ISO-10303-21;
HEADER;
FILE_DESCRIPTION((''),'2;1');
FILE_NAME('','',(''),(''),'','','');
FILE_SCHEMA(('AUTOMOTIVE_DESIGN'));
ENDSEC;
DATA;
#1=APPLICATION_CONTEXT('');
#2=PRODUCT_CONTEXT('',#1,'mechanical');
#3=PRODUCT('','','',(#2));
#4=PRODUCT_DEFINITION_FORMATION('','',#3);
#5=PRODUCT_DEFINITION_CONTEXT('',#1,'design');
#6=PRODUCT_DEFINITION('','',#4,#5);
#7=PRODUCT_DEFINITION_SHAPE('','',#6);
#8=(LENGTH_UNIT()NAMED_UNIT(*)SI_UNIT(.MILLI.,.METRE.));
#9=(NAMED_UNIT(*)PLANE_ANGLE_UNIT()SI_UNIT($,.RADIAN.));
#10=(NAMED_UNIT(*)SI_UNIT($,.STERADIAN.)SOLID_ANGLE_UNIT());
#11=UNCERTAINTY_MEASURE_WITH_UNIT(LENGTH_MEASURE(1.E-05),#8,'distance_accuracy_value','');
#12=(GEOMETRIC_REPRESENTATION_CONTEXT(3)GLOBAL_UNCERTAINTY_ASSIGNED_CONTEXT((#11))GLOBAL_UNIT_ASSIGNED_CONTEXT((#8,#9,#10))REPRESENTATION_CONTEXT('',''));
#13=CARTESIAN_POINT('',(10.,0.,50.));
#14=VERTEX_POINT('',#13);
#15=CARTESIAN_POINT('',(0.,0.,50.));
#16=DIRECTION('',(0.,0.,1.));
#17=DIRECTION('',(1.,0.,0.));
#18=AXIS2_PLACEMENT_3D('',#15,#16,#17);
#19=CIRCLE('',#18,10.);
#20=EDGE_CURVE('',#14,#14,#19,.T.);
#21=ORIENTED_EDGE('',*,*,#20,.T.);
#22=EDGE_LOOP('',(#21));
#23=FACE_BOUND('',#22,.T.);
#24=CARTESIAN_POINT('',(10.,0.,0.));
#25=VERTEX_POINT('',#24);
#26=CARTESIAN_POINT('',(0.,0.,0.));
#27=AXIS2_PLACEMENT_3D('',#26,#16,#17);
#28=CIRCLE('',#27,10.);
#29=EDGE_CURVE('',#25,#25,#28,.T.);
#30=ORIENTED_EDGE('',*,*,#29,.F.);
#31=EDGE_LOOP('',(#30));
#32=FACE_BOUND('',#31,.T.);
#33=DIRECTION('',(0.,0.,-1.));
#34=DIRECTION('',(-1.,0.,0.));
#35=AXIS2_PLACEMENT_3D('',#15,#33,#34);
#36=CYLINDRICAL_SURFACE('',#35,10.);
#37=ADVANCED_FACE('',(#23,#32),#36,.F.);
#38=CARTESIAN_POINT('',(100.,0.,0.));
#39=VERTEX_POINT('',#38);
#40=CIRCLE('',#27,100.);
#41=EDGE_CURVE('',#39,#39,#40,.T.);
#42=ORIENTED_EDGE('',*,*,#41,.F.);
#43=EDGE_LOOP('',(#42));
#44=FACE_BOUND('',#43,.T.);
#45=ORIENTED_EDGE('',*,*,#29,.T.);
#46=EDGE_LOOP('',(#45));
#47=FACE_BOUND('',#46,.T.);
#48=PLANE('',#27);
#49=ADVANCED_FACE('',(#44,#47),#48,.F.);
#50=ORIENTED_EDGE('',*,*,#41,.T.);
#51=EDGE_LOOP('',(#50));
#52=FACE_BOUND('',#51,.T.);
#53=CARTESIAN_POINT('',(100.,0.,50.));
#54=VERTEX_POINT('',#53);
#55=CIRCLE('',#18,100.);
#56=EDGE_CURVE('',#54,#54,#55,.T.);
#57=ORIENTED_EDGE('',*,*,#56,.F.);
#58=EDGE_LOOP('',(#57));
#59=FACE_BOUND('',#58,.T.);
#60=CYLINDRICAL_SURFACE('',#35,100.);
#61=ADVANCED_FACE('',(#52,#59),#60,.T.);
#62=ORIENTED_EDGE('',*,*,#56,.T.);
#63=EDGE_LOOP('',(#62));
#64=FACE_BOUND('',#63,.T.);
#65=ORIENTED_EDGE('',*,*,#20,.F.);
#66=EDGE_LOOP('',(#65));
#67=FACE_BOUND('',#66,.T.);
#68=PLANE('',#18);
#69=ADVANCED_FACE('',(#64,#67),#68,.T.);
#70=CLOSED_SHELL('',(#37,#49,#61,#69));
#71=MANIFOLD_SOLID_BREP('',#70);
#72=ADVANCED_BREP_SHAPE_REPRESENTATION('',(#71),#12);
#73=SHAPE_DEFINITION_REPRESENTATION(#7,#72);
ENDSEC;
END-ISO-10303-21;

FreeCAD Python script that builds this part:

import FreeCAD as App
import Part
import Sketcher
Q = App.Units.Quantity

doc = App.newDocument("Part")
params = doc.addObject("Spreadsheet::Sheet", "Params")
for row, (alias, value) in enumerate([
    ("sketch1_diameter", "200 mm"),
    ("pad1_length", "50 mm"),
    ("sketch2_diameter", "20 mm"),
    ("pocket1_length", "50 mm"),
], start=1):
    params.set(f"A{row}", alias)
    params.set(f"B{row}", "=" + value)
    params.setAlias(f"B{row}", alias)

body = doc.addObject("PartDesign::Body", "Body")

# Sketch on XY plane
sketch1 = body.newObject("Sketcher::SketchObject", "Sketch")
sketch1.AttachmentSupport = (doc.getObject("XY_Plane"), [""])
sketch1.MapMode = "FlatFace"
sketch1.addGeometry(Part.Circle(App.Vector(0, 0, 0), App.Vector(0, 0, 1), 100), False)
sketch1.addConstraint(Sketcher.Constraint("Coincident", 0, 3, -1, 1))
sketch1.addConstraint(Sketcher.Constraint("Diameter", 0, Q("200 mm")))
sketch1.setExpression("Constraints[1]", "Params.sketch1_diameter")
pad1 = body.newObject("PartDesign::Pad", "Pad")
pad1.Profile = sketch1
pad1.setExpression("Length", "Params.pad1_length")

# Sketch on XY plane
sketch2 = body.newObject("Sketcher::SketchObject", "Sketch001")
sketch2.AttachmentSupport = (doc.getObject("XY_Plane"), [""])
sketch2.MapMode = "FlatFace"
sketch2.addGeometry(Part.Circle(App.Vector(0, 0, 0), App.Vector(0, 0, 1), 10), False)
sketch2.addConstraint(Sketcher.Constraint("Coincident", 0, 3, -1, 1))
sketch2.addConstraint(Sketcher.Constraint("Diameter", 0, Q("20 mm")))
sketch2.setExpression("Constraints[1]", "Params.sketch2_diameter")
pocket1 = body.newObject("PartDesign::Pocket", "Pocket")
pocket1.Profile = sketch2
pocket1.setExpression("Length", "Params.pocket1_length")
pocket1.Reversed = True

doc.recompute()
